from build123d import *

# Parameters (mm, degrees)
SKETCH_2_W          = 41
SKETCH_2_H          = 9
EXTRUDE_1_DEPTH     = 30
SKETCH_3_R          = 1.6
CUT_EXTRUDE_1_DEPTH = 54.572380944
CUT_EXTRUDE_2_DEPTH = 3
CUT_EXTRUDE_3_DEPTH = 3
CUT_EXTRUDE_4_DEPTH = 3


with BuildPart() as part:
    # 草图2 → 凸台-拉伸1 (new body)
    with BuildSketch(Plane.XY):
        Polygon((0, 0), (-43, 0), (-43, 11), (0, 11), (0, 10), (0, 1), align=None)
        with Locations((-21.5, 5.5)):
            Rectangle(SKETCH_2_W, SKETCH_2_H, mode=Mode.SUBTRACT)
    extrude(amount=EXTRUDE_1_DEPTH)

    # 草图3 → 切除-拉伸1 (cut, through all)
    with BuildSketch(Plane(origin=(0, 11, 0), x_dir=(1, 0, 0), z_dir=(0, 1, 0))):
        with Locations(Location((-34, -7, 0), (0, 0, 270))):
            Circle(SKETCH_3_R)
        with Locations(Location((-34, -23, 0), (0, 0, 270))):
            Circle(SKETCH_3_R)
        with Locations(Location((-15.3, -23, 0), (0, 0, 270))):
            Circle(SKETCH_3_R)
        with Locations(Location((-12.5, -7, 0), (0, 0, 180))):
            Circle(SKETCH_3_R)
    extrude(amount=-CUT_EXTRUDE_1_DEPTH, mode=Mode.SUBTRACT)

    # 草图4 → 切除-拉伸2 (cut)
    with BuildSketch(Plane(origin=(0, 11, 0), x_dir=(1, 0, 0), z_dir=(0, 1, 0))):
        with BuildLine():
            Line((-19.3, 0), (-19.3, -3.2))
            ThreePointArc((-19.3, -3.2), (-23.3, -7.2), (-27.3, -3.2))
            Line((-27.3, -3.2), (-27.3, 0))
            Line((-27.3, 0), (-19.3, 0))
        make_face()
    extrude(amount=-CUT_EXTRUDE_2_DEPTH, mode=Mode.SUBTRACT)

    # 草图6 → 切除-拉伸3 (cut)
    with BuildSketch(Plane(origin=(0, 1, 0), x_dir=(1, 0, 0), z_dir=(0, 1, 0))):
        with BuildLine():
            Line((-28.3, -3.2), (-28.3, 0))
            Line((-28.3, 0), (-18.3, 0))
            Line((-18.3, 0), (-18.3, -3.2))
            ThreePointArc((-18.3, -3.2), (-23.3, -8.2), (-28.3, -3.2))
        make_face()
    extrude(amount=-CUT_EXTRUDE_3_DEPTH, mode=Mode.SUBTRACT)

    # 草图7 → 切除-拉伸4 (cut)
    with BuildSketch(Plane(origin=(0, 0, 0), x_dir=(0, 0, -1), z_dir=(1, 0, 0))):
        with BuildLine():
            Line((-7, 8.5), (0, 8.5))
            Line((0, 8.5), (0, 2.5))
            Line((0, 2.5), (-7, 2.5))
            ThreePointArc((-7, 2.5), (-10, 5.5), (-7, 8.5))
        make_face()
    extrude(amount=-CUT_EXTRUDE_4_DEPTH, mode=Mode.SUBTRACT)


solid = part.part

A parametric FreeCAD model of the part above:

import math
import FreeCAD as App
import Part
import Sketcher
from FreeCAD import Vector

doc = App.newDocument("Part")
body = doc.addObject("PartDesign::Body", "Body")

# Sketch on XY plane
sketch1 = doc.addObject("Sketcher::SketchObject", "Sketch")
body.addObject(sketch1)
sketch1.AttachmentSupport = (doc.XY_Plane, [""])
sketch1.MapMode = "FlatFace"
sketch1.addGeometry(Part.LineSegment(Vector(-43, 0, 0), Vector(0, 0, 0)), False)
sketch1.addGeometry(Part.LineSegment(Vector(0, 0, 0), Vector(0, 11, 0)), False)
sketch1.addGeometry(Part.LineSegment(Vector(0, 11, 0), Vector(-43, 11, 0)), False)
sketch1.addGeometry(Part.LineSegment(Vector(-43, 11, 0), Vector(-43, 0, 0)), False)
sketch1.addGeometry(Part.LineSegment(Vector(-42, 1, 0), Vector(-42, 10, 0)), False)
sketch1.addGeometry(Part.LineSegment(Vector(-42, 10, 0), Vector(-1, 10, 0)), False)
sketch1.addGeometry(Part.LineSegment(Vector(-1, 10, 0), Vector(-1, 1, 0)), False)
sketch1.addGeometry(Part.LineSegment(Vector(-1, 1, 0), Vector(-42, 1, 0)), False)
sketch1.addConstraint(Sketcher.Constraint("Coincident", 0, 2, 1, 1))
sketch1.addConstraint(Sketcher.Constraint("Coincident", 1, 2, 2, 1))
sketch1.addConstraint(Sketcher.Constraint("Coincident", 2, 2, 3, 1))
sketch1.addConstraint(Sketcher.Constraint("Coincident", 3, 2, 0, 1))
sketch1.addConstraint(Sketcher.Constraint("Coincident", 4, 2, 5, 1))
sketch1.addConstraint(Sketcher.Constraint("Coincident", 5, 2, 6, 1))
sketch1.addConstraint(Sketcher.Constraint("Coincident", 6, 2, 7, 1))
sketch1.addConstraint(Sketcher.Constraint("Coincident", 7, 2, 4, 1))
sketch1.addConstraint(Sketcher.Constraint("Horizontal", 0))
sketch1.addConstraint(Sketcher.Constraint("Vertical", 1))
sketch1.addConstraint(Sketcher.Constraint("Horizontal", 2))
sketch1.addConstraint(Sketcher.Constraint("Vertical", 3))
sketch1.addConstraint(Sketcher.Constraint("Vertical", 4))
sketch1.addConstraint(Sketcher.Constraint("Horizontal", 5))
sketch1.addConstraint(Sketcher.Constraint("Vertical", 6))
sketch1.addConstraint(Sketcher.Constraint("Horizontal", 7))
sketch1.addConstraint(Sketcher.Constraint("Coincident", 0, 2, -1, 1))
sketch1.addConstraint(Sketcher.Constraint("DistanceX", 0, 1, 0, 2, 43.0))
sketch1.addConstraint(Sketcher.Constraint("DistanceX", 5, 1, 5, 2, 41.0))
sketch1.addConstraint(Sketcher.Constraint("DistanceY", 1, 1, 1, 2, 11.0))
sketch1.addConstraint(Sketcher.Constraint("DistanceY", 4, 1, 4, 2, 9.0))
sketch1.addConstraint(Sketcher.Constraint("DistanceX", 4, 2, -1, 1, 42.0))
sketch1.addConstraint(Sketcher.Constraint("DistanceY", -1, 1, 4, 2, 10.0))
pad1 = doc.addObject("PartDesign::Pad", "Pad")
body.addObject(pad1)
pad1.Profile = sketch1
pad1.Length = 30

# Sketch on XZ plane
sketch2 = doc.addObject("Sketcher::SketchObject", "Sketch001")
body.addObject(sketch2)
sketch2.AttachmentSupport = (doc.XZ_Plane, [""])
sketch2.MapMode = "FlatFace"
sketch2.AttachmentOffset = App.Placement(Vector(0, 0, -11), App.Rotation())
sketch2.addGeometry(Part.Circle(Vector(-34, 7, 0), Vector(0, 0, 1), 1.6), False)
sketch2.addGeometry(Part.Circle(Vector(-34, 23, 0), Vector(0, 0, 1), 1.6), False)
sketch2.addGeometry(Part.Circle(Vector(-15.3, 23, 0), Vector(0, 0, 1), 1.6), False)
sketch2.addGeometry(Part.Circle(Vector(-12.5, 7, 0), Vector(0, 0, 1), 1.6), False)
sketch2.addConstraint(Sketcher.Constraint("Equal", 0, 1))
sketch2.addConstraint(Sketcher.Constraint("Equal", 1, 2))
sketch2.addConstraint(Sketcher.Constraint("Equal", 2, 3))
sketch2.addConstraint(Sketcher.Constraint("Horizontal", 1, 3, 2, 3))
sketch2.addConstraint(Sketcher.Constraint("Horizontal", 0, 3, 3, 3))
sketch2.addConstraint(Sketcher.Constraint("Vertical", 0, 3, 1, 3))
sketch2.addConstraint(Sketcher.Constraint("Diameter", 0, 3.2))
sketch2.addConstraint(Sketcher.Constraint("DistanceX", 0, 3, -1, 1, 34.0))
sketch2.addConstraint(Sketcher.Constraint("DistanceY", -1, 1, 0, 3, 7.0))
sketch2.addConstraint(Sketcher.Constraint("DistanceY", -1, 1, 1, 3, 23.0))
sketch2.addConstraint(Sketcher.Constraint("DistanceX", 2, 3, -1, 1, 15.3))
sketch2.addConstraint(Sketcher.Constraint("DistanceX", 3, 3, -1, 1, 12.5))
pocket1 = doc.addObject("PartDesign::Pocket", "Pocket")
body.addObject(pocket1)
pocket1.Profile = sketch2
pocket1.Type = "ThroughAll"
pocket1.Reversed = True

# Sketch on XZ plane
sketch3 = doc.addObject("Sketcher::SketchObject", "Sketch002")
body.addObject(sketch3)
sketch3.AttachmentSupport = (doc.XZ_Plane, [""])
sketch3.MapMode = "FlatFace"
sketch3.AttachmentOffset = App.Placement(Vector(0, 0, -11), App.Rotation())
sketch3.addGeometry(Part.LineSegment(Vector(-19.3, 3.2, 0), Vector(-19.3, 0, 0)), False)
sketch3.addGeometry(Part.LineSegment(Vector(-19.3, 0, 0), Vector(-27.3, 0, 0)), False)
sketch3.addGeometry(Part.LineSegment(Vector(-27.3, 0, 0), Vector(-27.3, 3.2, 0)), False)
sketch3.addGeometry(Part.ArcOfCircle(Part.Circle(Vector(-23.3, 3.2, 0), Vector(0, 0, 1), 4), math.radians(0), math.radians(180)), False)
sketch3.addConstraint(Sketcher.Constraint("Coincident", 0, 2, 1, 1))
sketch3.addConstraint(Sketcher.Constraint("Coincident", 1, 2, 2, 1))
sketch3.addConstraint(Sketcher.Constraint("Tangent", 2, 2, 3, 2))
sketch3.addConstraint(Sketcher.Constraint("Tangent", 3, 1, 0, 1))
sketch3.addConstraint(Sketcher.Constraint("Vertical", 0))
sketch3.addConstraint(Sketcher.Constraint("Horizontal", 1))
sketch3.addConstraint(Sketcher.Constraint("Vertical", 2))
sketch3.addConstraint(Sketcher.Constraint("PointOnObject", 0, 2, -1))
sketch3.addConstraint(Sketcher.Constraint("Radius", 3, 4.0))
sketch3.addConstraint(Sketcher.Constraint("DistanceY", 0, 2, 0, 1, 3.2))
sketch3.addConstraint(Sketcher.Constraint("DistanceX", 3, 3, -1, 1, 23.3))
pocket2 = doc.addObject("PartDesign::Pocket", "Pocket001")
body.addObject(pocket2)
pocket2.Profile = sketch3
pocket2.Length = 3
pocket2.Reversed = True

# Sketch on XZ plane
sketch4 = doc.addObject("Sketcher::SketchObject", "Sketch003")
body.addObject(sketch4)
sketch4.AttachmentSupport = (doc.XZ_Plane, [""])
sketch4.MapMode = "FlatFace"
sketch4.AttachmentOffset = App.Placement(Vector(0, 0, -1), App.Rotation())
sketch4.addGeometry(Part.LineSegment(Vector(-28.3, 0, 0), Vector(-28.3, 3.2, 0)), False)
sketch4.addGeometry(Part.ArcOfCircle(Part.Circle(Vector(-23.3, 3.2, 0), Vector(0, 0, 1), 5), math.radians(0), math.radians(180)), False)
sketch4.addGeometry(Part.LineSegment(Vector(-18.3, 3.2, 0), Vector(-18.3, 0, 0)), False)
sketch4.addGeometry(Part.LineSegment(Vector(-18.3, 0, 0), Vector(-28.3, 0, 0)), False)
sketch4.addConstraint(Sketcher.Constraint("Tangent", 0, 2, 1, 2))
sketch4.addConstraint(Sketcher.Constraint("Tangent", 1, 1, 2, 1))
sketch4.addConstraint(Sketcher.Constraint("Coincident", 2, 2, 3, 1))
sketch4.addConstraint(Sketcher.Constraint("Coincident", 3, 2, 0, 1))
sketch4.addConstraint(Sketcher.Constraint("Vertical", 0))
sketch4.addConstraint(Sketcher.Constraint("Vertical", 2))
sketch4.addConstraint(Sketcher.Constraint("Horizontal", 3))
sketch4.addConstraint(Sketcher.Constraint("PointOnObject", 2, 2, -1))
sketch4.addConstraint(Sketcher.Constraint("Radius", 1, 5.0))
sketch4.addConstraint(Sketcher.Constraint("DistanceY", 0, 1, 0, 2, 3.2))
sketch4.addConstraint(Sketcher.Constraint("DistanceX", 1, 3, -1, 1, 23.3))
pocket3 = doc.addObject("PartDesign::Pocket", "Pocket002")
body.addObject(pocket3)
pocket3.Profile = sketch4
pocket3.Length = 3
pocket3.Reversed = True

# Sketch on YZ plane
sketch5 = doc.addObject("Sketcher::SketchObject", "Sketch004")
body.addObject(sketch5)
sketch5.AttachmentSupport = (doc.YZ_Plane, [""])
sketch5.MapMode = "FlatFace"
sketch5.addGeometry(Part.LineSegment(Vector(8.5, 0, 0), Vector(8.5, 7, 0)), False)
sketch5.addGeometry(Part.ArcOfCircle(Part.Circle(Vector(5.5, 7, 0), Vector(0, 0, 1), 3), math.radians(0), math.radians(180)), False)
sketch5.addGeometry(Part.LineSegment(Vector(2.5, 7, 0), Vector(2.5, 0, 0)), False)
sketch5.addGeometry(Part.LineSegment(Vector(2.5, 0, 0), Vector(8.5, 0, 0)), False)
sketch5.addConstraint(Sketcher.Constraint("Tangent", 0, 2, 1, 1))
sketch5.addConstraint(Sketcher.Constraint("Tangent", 1, 2, 2, 1))
sketch5.addConstraint(Sketcher.Constraint("Coincident", 2, 2, 3, 1))
sketch5.addConstraint(Sketcher.Constraint("Coincident", 3, 2, 0, 1))
sketch5.addConstraint(Sketcher.Constraint("Vertical", 0))
sketch5.addConstraint(Sketcher.Constraint("Vertical", 2))
sketch5.addConstraint(Sketcher.Constraint("Horizontal", 3))
sketch5.addConstraint(Sketcher.Constraint("PointOnObject", 2, 2, -1))
sketch5.addConstraint(Sketcher.Constraint("Radius", 1, 3.0))
sketch5.addConstraint(Sketcher.Constraint("DistanceY", 0, 1, 0, 2, 7.0))
sketch5.addConstraint(Sketcher.Constraint("DistanceX", -1, 1, 1, 3, 5.5))
pocket4 = doc.addObject("PartDesign::Pocket", "Pocket003")
body.addObject(pocket4)
pocket4.Profile = sketch5
pocket4.Length = 3

doc.recompute()
